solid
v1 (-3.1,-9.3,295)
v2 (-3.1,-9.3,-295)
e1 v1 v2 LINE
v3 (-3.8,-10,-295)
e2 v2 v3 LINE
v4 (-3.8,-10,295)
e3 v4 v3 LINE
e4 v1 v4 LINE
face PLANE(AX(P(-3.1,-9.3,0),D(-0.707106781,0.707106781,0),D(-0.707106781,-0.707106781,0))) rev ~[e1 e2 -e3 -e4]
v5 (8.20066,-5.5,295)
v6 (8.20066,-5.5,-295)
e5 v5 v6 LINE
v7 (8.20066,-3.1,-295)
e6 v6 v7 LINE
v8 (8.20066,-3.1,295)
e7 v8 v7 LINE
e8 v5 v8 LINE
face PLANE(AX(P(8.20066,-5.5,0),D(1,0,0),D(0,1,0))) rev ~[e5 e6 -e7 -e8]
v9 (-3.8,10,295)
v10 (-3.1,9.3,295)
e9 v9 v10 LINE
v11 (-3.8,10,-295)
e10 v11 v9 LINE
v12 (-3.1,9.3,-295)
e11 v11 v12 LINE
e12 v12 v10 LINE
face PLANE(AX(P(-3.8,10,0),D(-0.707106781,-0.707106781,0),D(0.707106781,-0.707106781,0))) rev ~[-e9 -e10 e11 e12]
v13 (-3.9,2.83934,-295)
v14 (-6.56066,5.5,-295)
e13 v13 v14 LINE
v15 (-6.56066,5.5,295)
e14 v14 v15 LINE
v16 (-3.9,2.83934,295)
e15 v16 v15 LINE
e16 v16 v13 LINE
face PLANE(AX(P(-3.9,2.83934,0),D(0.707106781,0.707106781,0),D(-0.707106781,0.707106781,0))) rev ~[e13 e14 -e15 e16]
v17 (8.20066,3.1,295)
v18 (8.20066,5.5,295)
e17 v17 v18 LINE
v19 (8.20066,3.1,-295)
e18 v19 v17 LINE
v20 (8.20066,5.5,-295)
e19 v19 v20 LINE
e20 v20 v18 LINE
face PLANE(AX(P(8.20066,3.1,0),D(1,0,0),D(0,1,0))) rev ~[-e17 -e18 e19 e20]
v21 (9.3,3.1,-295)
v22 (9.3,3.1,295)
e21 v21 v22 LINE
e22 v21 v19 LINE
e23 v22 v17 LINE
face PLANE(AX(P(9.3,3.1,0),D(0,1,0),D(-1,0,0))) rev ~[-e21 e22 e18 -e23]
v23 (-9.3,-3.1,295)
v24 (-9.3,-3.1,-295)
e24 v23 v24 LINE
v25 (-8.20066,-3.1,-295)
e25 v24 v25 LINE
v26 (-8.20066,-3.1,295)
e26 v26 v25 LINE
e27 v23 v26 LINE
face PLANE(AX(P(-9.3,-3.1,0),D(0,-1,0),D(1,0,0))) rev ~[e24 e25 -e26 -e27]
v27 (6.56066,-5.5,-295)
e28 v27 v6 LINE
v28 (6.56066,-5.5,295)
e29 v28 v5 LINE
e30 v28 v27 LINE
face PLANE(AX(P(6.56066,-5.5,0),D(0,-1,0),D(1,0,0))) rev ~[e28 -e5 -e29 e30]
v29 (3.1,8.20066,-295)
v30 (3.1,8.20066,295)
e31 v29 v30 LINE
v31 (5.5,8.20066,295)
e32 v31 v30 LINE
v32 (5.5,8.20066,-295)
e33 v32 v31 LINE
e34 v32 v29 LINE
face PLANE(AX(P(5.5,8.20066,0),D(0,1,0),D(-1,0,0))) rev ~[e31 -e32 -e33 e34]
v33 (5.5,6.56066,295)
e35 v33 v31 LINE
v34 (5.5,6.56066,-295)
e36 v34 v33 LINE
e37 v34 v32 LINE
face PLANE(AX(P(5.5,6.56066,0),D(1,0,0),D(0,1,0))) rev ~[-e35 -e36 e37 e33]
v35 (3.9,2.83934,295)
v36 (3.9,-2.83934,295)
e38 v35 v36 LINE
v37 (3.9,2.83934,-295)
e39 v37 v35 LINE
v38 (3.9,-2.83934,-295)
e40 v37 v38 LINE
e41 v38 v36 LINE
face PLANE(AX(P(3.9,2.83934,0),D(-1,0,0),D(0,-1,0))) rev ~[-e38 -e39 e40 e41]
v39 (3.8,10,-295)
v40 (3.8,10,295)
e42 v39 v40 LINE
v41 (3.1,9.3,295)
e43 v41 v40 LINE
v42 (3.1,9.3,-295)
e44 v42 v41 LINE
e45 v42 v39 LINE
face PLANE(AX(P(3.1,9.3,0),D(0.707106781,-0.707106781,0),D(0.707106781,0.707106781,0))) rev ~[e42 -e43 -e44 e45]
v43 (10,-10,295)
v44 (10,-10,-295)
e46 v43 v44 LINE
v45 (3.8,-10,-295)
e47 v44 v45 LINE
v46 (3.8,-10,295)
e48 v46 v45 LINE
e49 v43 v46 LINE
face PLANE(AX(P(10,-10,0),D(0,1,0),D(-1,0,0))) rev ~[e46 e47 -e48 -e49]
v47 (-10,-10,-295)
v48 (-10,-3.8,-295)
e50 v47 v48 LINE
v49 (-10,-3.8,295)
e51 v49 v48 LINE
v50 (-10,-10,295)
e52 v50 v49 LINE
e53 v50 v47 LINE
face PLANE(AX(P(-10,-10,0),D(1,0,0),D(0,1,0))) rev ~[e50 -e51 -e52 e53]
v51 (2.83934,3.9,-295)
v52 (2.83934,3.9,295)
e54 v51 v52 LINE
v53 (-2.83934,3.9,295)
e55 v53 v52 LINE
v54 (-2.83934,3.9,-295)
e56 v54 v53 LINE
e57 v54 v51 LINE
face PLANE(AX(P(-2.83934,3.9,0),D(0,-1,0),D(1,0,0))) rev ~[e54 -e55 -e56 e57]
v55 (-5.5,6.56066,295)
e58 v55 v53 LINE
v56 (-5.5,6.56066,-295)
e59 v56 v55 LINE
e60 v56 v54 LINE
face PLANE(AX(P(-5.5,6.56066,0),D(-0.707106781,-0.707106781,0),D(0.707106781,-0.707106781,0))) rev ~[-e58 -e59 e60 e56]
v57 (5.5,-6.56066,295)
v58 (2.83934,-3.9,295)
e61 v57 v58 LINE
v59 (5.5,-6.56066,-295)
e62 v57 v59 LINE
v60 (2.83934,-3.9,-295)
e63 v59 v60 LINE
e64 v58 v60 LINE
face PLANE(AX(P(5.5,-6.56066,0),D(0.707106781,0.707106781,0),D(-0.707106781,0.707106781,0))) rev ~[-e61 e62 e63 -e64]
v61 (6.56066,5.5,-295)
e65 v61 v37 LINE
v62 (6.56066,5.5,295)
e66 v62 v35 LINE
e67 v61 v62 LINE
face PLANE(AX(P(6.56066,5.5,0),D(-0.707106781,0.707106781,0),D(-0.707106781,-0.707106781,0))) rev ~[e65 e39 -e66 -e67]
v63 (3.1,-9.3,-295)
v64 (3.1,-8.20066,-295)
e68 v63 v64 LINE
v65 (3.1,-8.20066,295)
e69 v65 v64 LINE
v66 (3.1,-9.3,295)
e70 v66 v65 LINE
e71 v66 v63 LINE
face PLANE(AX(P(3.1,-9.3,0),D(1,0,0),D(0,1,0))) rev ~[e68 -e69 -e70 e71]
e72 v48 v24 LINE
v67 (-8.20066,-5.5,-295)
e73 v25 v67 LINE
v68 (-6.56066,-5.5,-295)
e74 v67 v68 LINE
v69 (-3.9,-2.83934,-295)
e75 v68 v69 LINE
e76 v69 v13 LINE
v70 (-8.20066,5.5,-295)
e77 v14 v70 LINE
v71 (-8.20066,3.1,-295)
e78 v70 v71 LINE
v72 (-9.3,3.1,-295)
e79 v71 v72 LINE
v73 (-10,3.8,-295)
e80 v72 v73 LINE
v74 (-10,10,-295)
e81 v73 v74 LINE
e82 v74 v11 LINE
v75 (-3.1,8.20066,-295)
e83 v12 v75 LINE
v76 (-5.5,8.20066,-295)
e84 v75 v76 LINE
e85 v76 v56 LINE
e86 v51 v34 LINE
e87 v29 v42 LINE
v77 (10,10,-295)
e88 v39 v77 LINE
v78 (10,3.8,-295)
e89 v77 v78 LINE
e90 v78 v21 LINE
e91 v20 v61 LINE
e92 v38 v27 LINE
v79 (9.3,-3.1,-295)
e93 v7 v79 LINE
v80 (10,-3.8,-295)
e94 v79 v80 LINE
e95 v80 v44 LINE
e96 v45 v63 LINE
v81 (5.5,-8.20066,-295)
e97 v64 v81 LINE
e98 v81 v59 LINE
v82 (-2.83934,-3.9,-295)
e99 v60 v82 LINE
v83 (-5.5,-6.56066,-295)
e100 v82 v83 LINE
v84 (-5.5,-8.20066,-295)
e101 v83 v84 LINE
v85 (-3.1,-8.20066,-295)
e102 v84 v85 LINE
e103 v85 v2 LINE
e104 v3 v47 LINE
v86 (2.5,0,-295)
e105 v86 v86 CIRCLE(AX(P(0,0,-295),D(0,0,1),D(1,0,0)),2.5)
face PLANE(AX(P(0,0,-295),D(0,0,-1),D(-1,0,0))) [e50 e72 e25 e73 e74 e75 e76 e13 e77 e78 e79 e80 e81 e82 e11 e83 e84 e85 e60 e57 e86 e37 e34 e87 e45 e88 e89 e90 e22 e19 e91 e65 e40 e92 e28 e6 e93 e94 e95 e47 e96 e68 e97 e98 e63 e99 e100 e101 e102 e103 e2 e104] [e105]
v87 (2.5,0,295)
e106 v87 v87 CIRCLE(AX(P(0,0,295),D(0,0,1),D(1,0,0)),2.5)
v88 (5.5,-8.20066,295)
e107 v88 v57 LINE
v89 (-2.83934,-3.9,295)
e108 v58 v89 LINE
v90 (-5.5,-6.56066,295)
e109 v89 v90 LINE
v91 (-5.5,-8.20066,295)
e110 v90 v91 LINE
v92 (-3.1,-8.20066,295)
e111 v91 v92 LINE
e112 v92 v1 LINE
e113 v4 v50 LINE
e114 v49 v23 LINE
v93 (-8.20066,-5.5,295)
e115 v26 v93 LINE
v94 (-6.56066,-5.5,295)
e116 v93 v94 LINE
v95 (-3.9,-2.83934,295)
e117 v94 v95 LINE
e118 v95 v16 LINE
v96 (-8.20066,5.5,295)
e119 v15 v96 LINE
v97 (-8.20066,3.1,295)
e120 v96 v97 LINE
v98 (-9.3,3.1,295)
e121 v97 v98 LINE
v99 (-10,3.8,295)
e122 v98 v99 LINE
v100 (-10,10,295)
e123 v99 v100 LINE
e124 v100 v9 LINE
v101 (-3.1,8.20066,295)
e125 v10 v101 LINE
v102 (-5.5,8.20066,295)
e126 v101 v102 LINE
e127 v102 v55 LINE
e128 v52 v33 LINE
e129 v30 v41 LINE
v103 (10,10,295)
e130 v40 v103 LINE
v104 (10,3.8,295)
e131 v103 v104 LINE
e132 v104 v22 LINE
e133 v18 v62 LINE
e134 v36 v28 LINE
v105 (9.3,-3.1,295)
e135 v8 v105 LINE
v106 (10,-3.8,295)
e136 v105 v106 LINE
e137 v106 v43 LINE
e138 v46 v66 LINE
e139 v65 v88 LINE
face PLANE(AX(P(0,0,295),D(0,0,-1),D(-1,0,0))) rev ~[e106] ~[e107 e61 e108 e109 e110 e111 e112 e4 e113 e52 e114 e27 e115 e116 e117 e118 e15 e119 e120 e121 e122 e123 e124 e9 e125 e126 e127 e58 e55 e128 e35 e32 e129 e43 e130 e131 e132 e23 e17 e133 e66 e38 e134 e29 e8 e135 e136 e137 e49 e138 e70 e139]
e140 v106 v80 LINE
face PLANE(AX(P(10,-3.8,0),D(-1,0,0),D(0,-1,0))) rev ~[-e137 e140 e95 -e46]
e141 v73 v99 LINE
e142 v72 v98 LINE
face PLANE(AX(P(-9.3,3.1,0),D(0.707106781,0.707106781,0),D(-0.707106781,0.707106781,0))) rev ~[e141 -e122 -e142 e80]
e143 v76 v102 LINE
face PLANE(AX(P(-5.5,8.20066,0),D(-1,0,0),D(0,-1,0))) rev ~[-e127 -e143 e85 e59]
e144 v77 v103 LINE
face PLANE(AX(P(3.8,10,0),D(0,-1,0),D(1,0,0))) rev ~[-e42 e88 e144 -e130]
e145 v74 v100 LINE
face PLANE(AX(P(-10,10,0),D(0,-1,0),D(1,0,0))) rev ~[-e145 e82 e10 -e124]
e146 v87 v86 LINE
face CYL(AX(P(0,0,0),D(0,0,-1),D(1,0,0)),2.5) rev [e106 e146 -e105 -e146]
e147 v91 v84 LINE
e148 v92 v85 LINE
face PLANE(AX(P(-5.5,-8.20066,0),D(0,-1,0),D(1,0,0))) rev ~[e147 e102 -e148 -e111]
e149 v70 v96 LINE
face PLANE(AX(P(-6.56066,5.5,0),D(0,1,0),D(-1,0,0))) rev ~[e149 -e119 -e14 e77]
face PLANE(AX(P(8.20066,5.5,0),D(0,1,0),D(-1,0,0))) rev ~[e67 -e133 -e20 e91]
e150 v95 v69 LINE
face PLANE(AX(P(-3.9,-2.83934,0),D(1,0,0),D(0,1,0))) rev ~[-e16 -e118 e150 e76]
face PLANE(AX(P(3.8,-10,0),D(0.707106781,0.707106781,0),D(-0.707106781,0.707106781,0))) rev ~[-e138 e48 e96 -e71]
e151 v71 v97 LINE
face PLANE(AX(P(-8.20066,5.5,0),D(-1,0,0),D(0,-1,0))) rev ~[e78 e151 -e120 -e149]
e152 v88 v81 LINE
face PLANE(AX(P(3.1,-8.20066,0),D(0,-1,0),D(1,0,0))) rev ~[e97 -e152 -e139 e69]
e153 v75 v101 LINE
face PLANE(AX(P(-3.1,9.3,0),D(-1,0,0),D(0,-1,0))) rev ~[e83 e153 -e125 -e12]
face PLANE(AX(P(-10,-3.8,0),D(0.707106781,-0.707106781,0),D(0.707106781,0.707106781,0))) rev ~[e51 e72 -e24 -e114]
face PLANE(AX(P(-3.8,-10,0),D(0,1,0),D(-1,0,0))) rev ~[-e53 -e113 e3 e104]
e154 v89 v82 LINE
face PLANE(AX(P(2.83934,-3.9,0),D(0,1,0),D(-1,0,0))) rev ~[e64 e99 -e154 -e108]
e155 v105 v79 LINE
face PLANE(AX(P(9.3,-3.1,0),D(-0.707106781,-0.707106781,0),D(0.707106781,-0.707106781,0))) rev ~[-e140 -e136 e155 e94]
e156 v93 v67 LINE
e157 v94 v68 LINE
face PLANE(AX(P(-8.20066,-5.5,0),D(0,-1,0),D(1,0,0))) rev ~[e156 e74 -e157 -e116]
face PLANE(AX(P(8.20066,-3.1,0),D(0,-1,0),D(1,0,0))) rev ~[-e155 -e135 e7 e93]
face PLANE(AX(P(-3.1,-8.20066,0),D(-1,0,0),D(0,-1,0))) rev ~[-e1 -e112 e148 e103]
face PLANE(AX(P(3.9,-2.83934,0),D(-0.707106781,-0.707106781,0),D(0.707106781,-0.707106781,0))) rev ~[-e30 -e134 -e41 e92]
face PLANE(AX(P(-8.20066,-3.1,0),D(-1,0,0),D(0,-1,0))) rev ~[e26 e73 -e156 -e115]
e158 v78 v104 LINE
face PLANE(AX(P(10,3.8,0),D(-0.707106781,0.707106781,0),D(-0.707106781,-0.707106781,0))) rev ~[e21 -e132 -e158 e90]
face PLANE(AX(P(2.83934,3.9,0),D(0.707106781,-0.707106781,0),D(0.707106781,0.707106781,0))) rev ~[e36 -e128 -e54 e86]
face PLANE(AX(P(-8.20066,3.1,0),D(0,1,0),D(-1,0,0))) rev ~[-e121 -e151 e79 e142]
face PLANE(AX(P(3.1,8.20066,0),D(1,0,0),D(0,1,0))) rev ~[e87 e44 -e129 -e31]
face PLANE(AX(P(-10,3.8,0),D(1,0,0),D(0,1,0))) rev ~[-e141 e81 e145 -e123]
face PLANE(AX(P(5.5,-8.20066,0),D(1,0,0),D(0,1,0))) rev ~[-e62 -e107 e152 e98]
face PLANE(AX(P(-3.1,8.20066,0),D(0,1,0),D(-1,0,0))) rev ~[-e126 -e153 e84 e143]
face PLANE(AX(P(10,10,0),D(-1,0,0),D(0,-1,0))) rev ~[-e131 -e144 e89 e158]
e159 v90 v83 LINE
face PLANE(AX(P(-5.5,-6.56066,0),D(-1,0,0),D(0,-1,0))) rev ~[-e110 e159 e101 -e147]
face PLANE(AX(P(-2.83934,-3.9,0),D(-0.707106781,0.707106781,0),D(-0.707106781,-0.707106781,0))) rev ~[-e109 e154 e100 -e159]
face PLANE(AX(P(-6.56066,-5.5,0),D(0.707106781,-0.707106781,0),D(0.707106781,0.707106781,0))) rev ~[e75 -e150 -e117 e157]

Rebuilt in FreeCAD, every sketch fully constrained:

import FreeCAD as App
import Part
import Sketcher
from FreeCAD import Vector


def add_polygon(sketch, points):
    """Adds a closed chain of lines whose ends are joined by coincident constraints."""
    first, n = sketch.GeometryCount, len(points)
    for a, b in zip(points, points[1:] + points[:1]):
        sketch.addGeometry(Part.LineSegment(App.Vector(*a, 0), App.Vector(*b, 0)), False)
    for i in range(n):
        sketch.addConstraint(Sketcher.Constraint("Coincident", first + i, 2, first + (i + 1) % n, 1))

doc = App.newDocument("Part")
params = doc.addObject("Spreadsheet::Sheet", "Params")
for row, (alias, value) in enumerate([
    ("sketch1_diameter", "5 mm"),
    ("sketch1_width", "6.2 mm"),
    ("sketch1_width2", "2.4 mm"),
    ("sketch1_width3", "1.64 mm"),
    ("pad1_length", "590 mm"),
], start=1):
    params.set(f"A{row}", alias)
    params.set(f"B{row}", "=" + value)
    params.setAlias(f"B{row}", alias)

body = doc.addObject("PartDesign::Body", "Body")

# Sketch on XY plane
sketch1 = body.newObject("Sketcher::SketchObject", "Sketch")
sketch1.AttachmentSupport = (doc.getObject("XY_Plane"), [""])
sketch1.MapMode = "FlatFace"
add_polygon(sketch1, [(6.6, -5.5), (3.9, -2.8), (3.9, 2.8), (6.6, 5.5), (8.2, 5.5), (8.2, 3.1), (9.3, 3.1), (10, 3.8), (10, 10), (3.8, 10), (3.1, 9.3), (3.1, 8.2), (5.5, 8.2), (5.5, 6.6), (2.8, 3.9), (-2.8, 3.9), (-5.5, 6.6), (-5.5, 8.2), (-3.1, 8.2), (-3.1, 9.3), (-3.8, 10), (-10, 10), (-10, 3.8), (-9.3, 3.1), (-8.2, 3.1), (-8.2, 5.5), (-6.6, 5.5), (-3.9, 2.8), (-3.9, -2.8), (-6.6, -5.5), (-8.2, -5.5), (-8.2, -3.1), (-9.3, -3.1), (-10, -3.8), (-10, -10), (-3.8, -10), (-3.1, -9.3), (-3.1, -8.2), (-5.5, -8.2), (-5.5, -6.6), (-2.8, -3.9), (2.8, -3.9), (5.5, -6.6), (5.5, -8.2), (3.1, -8.2), (3.1, -9.3), (3.8, -10), (10, -10), (10, -3.8), (9.3, -3.1), (8.2, -3.1), (8.2, -5.5)])  # lines 0-51
sketch1.addGeometry(Part.Circle(Vector(0, 0, 0), Vector(0, 0, 1), 2.5), False)  # 52
sketch1.addConstraint(Sketcher.Constraint("Vertical", 1))
sketch1.addConstraint(Sketcher.Constraint("Horizontal", 3))
sketch1.addConstraint(Sketcher.Constraint("Vertical", 4))
sketch1.addConstraint(Sketcher.Constraint("Horizontal", 5))
sketch1.addConstraint(Sketcher.Constraint("Vertical", 7))
sketch1.addConstraint(Sketcher.Constraint("Horizontal", 8))
sketch1.addConstraint(Sketcher.Constraint("Vertical", 10))
sketch1.addConstraint(Sketcher.Constraint("Horizontal", 11))
sketch1.addConstraint(Sketcher.Constraint("Vertical", 12))
sketch1.addConstraint(Sketcher.Constraint("Horizontal", 14))
sketch1.addConstraint(Sketcher.Constraint("Vertical", 16))
sketch1.addConstraint(Sketcher.Constraint("Horizontal", 17))
sketch1.addConstraint(Sketcher.Constraint("Vertical", 18))
sketch1.addConstraint(Sketcher.Constraint("Horizontal", 20))
sketch1.addConstraint(Sketcher.Constraint("Vertical", 21))
sketch1.addConstraint(Sketcher.Constraint("Horizontal", 23))
sketch1.addConstraint(Sketcher.Constraint("Vertical", 24))
sketch1.addConstraint(Sketcher.Constraint("Horizontal", 25))
sketch1.addConstraint(Sketcher.Constraint("Vertical", 27))
sketch1.addConstraint(Sketcher.Constraint("Horizontal", 29))
sketch1.addConstraint(Sketcher.Constraint("Vertical", 30))
sketch1.addConstraint(Sketcher.Constraint("Horizontal", 31))
sketch1.addConstraint(Sketcher.Constraint("Vertical", 33))
sketch1.addConstraint(Sketcher.Constraint("Horizontal", 34))
sketch1.addConstraint(Sketcher.Constraint("Vertical", 36))
sketch1.addConstraint(Sketcher.Constraint("Horizontal", 37))
sketch1.addConstraint(Sketcher.Constraint("Vertical", 38))
sketch1.addConstraint(Sketcher.Constraint("Horizontal", 40))
sketch1.addConstraint(Sketcher.Constraint("Vertical", 42))
sketch1.addConstraint(Sketcher.Constraint("Horizontal", 43))
sketch1.addConstraint(Sketcher.Constraint("Vertical", 44))
sketch1.addConstraint(Sketcher.Constraint("Horizontal", 46))
sketch1.addConstraint(Sketcher.Constraint("Vertical", 47))
sketch1.addConstraint(Sketcher.Constraint("Horizontal", 49))
sketch1.addConstraint(Sketcher.Constraint("Vertical", 50))
sketch1.addConstraint(Sketcher.Constraint("Horizontal", 51))
sketch1.addConstraint(Sketcher.Constraint("Coincident", 52, 3, -1, 1))
sketch1.addConstraint(Sketcher.Constraint("Symmetric", 0, 2, 26, 2, -1, 1))
sketch1.addConstraint(Sketcher.Constraint("Symmetric", 2, 2, 28, 2, -1, 1))
sketch1.addConstraint(Sketcher.Constraint("Symmetric", 4, 2, 30, 2, -1, 1))
sketch1.addConstraint(Sketcher.Constraint("Symmetric", 6, 2, 32, 2, -1, 1))
sketch1.addConstraint(Sketcher.Constraint("Symmetric", 8, 2, 34, 2, -1, 1))
sketch1.addConstraint(Sketcher.Constraint("Symmetric", 9, 2, 35, 2, -1, 1))
sketch1.addConstraint(Sketcher.Constraint("Symmetric", 11, 2, 37, 2, -1, 1))
sketch1.addConstraint(Sketcher.Constraint("Symmetric", 13, 2, 39, 2, -1, 1))
sketch1.addConstraint(Sketcher.Constraint("Symmetric", 15, 2, 41, 2, -1, 1))
sketch1.addConstraint(Sketcher.Constraint("Symmetric", 17, 2, 43, 2, -1, 1))
sketch1.addConstraint(Sketcher.Constraint("Symmetric", 19, 2, 45, 2, -1, 1))
sketch1.addConstraint(Sketcher.Constraint("Symmetric", 21, 2, 47, 2, -1, 1))
sketch1.addConstraint(Sketcher.Constraint("Symmetric", 22, 2, 48, 2, -1, 1))
sketch1.addConstraint(Sketcher.Constraint("Symmetric", 24, 2, 50, 2, -1, 1))
sketch1.addConstraint(Sketcher.Constraint("Symmetric", 12, 2, 15, 2, -2))
sketch1.addConstraint(Sketcher.Constraint("Symmetric", 10, 2, 17, 2, -2))
sketch1.addConstraint(Sketcher.Constraint("Symmetric", 8, 2, 19, 2, -2))
sketch1.addConstraint(Sketcher.Constraint("Symmetric", 6, 2, 21, 2, -2))
sketch1.addConstraint(Sketcher.Constraint("Symmetric", 5, 2, 22, 2, -2))
sketch1.addConstraint(Sketcher.Constraint("Symmetric", 3, 2, 24, 2, -2))
sketch1.addConstraint(Sketcher.Constraint("Perpendicular", 0, 2))
sketch1.addConstraint(Sketcher.Constraint("Parallel", 2, 6))
sketch1.addConstraint(Sketcher.Constraint("Parallel", 6, 9))
sketch1.addConstraint(Sketcher.Constraint("Parallel", 9, 13))
sketch1.addConstraint(Sketcher.Constraint("Perpendicular", 13, 15))
sketch1.addConstraint(Sketcher.Constraint("Parallel", 15, 19))
sketch1.addConstraint(Sketcher.Constraint("Parallel", 19, 22))
sketch1.addConstraint(Sketcher.Constraint("Parallel", 22, 26))
sketch1.addConstraint(Sketcher.Constraint("Perpendicular", 26, 28))
sketch1.addConstraint(Sketcher.Constraint("Parallel", 28, 32))
sketch1.addConstraint(Sketcher.Constraint("Parallel", 35, 39))
sketch1.addConstraint(Sketcher.Constraint("Perpendicular", 39, 41))
sketch1.addConstraint(Sketcher.Constraint("Parallel", 41, 45))
sketch1.addConstraint(Sketcher.Constraint("Horizontal", 1, 2, 26, 2))
sketch1.addConstraint(Sketcher.Constraint("Equal", 40, 1))
sketch1.addConstraint(Sketcher.Constraint("Equal", 43, 4))
sketch1.addConstraint(Sketcher.Constraint("Equal", 46, 7))
sketch1.addConstraint(Sketcher.Constraint("Equal", 49, 10))
sketch1.addConstraint(Sketcher.Constraint("Equal", 51, 12))
sketch1.addConstraint(Sketcher.Constraint("Equal", 6, 9))
sketch1.addConstraint(Sketcher.Constraint("Equal", 2, 13))
sketch1.addConstraint(Sketcher.Constraint("Diameter", 52, 5.0))
sketch1.addConstraint(Sketcher.Constraint("DistanceX", 8, 2, 8, 1, 6.2))
sketch1.addConstraint(Sketcher.Constraint("DistanceX", 11, 1, 11, 2, 2.4))
sketch1.addConstraint(Sketcher.Constraint("DistanceX", -1, 1, 6, 2, 10.0))
sketch1.addConstraint(Sketcher.Constraint("DistanceX", 3, 1, 3, 2, 1.64))
sketch1.addConstraint(Sketcher.Constraint("DistanceX", -1, 1, 0, 2, 3.9))
sketch1.addConstraint(Sketcher.Constraint("DistanceY", -1, 1, 2, 2, 5.5))
sketch1.addConstraint(Sketcher.Constraint("DistanceX", 5, 1, 5, 2, 1.09934))
sketch1.setExpression("Constraints[130]", "Params.sketch1_diameter")
sketch1.setExpression("Constraints[131]", "Params.sketch1_width")
sketch1.setExpression("Constraints[132]", "Params.sketch1_width2")
sketch1.setExpression("Constraints[134]", "Params.sketch1_width3")
pad1 = body.newObject("PartDesign::Pad", "Pad")
pad1.Profile = sketch1
pad1.setExpression("Length", "Params.pad1_length")
pad1.Midplane = True

doc.recompute()
